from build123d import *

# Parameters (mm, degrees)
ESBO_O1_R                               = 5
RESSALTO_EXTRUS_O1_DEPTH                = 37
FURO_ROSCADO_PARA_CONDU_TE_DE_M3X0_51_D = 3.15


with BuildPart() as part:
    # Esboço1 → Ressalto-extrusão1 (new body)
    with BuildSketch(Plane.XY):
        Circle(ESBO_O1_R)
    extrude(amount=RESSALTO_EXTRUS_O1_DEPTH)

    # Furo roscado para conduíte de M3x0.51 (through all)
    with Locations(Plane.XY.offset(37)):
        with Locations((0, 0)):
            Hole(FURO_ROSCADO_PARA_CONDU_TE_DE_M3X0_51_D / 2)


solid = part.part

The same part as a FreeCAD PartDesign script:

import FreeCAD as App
import Part
import Sketcher

doc = App.newDocument("Part")
body = doc.addObject("PartDesign::Body", "Body")

sketch1 = body.newObject("Sketcher::SketchObject", "Sketch")
sketch1.AttachmentSupport = (doc.getObject("XY_Plane"), [""])
sketch1.MapMode = "FlatFace"
sketch1.addGeometry(Part.Circle(App.Vector(0, 0, 0), App.Vector(0, 0, 1), 5), False)
sketch1.addConstraint([
    Sketcher.Constraint("Coincident", 0, 3, -1, 1),
    Sketcher.Constraint("Diameter", 0, 10.0),
])
pad1 = body.newObject("PartDesign::Pad", "Pad")
pad1.Profile = sketch1
pad1.Length = 37

sketch2 = body.newObject("Sketcher::SketchObject", "Sketch001")
sketch2.AttachmentSupport = (doc.getObject("XY_Plane"), [""])
sketch2.MapMode = "FlatFace"
sketch2.AttachmentOffset = App.Placement(App.Vector(0, 0, 37), App.Rotation())
sketch2.addGeometry(Part.Circle(App.Vector(0, 0, 0), App.Vector(0, 0, 1), 1.575), False)
sketch2.addConstraint([
    Sketcher.Constraint("Coincident", 0, 3, -1, 1),
    Sketcher.Constraint("Diameter", 0, 3.15),
])
doc.recompute()
hole = body.newObject("PartDesign::Hole", "Hole")
hole.Profile = sketch2
hole.ThreadType = "None"
hole.Diameter = 3.15
hole.DepthType = "ThroughAll"

doc.recompute()
